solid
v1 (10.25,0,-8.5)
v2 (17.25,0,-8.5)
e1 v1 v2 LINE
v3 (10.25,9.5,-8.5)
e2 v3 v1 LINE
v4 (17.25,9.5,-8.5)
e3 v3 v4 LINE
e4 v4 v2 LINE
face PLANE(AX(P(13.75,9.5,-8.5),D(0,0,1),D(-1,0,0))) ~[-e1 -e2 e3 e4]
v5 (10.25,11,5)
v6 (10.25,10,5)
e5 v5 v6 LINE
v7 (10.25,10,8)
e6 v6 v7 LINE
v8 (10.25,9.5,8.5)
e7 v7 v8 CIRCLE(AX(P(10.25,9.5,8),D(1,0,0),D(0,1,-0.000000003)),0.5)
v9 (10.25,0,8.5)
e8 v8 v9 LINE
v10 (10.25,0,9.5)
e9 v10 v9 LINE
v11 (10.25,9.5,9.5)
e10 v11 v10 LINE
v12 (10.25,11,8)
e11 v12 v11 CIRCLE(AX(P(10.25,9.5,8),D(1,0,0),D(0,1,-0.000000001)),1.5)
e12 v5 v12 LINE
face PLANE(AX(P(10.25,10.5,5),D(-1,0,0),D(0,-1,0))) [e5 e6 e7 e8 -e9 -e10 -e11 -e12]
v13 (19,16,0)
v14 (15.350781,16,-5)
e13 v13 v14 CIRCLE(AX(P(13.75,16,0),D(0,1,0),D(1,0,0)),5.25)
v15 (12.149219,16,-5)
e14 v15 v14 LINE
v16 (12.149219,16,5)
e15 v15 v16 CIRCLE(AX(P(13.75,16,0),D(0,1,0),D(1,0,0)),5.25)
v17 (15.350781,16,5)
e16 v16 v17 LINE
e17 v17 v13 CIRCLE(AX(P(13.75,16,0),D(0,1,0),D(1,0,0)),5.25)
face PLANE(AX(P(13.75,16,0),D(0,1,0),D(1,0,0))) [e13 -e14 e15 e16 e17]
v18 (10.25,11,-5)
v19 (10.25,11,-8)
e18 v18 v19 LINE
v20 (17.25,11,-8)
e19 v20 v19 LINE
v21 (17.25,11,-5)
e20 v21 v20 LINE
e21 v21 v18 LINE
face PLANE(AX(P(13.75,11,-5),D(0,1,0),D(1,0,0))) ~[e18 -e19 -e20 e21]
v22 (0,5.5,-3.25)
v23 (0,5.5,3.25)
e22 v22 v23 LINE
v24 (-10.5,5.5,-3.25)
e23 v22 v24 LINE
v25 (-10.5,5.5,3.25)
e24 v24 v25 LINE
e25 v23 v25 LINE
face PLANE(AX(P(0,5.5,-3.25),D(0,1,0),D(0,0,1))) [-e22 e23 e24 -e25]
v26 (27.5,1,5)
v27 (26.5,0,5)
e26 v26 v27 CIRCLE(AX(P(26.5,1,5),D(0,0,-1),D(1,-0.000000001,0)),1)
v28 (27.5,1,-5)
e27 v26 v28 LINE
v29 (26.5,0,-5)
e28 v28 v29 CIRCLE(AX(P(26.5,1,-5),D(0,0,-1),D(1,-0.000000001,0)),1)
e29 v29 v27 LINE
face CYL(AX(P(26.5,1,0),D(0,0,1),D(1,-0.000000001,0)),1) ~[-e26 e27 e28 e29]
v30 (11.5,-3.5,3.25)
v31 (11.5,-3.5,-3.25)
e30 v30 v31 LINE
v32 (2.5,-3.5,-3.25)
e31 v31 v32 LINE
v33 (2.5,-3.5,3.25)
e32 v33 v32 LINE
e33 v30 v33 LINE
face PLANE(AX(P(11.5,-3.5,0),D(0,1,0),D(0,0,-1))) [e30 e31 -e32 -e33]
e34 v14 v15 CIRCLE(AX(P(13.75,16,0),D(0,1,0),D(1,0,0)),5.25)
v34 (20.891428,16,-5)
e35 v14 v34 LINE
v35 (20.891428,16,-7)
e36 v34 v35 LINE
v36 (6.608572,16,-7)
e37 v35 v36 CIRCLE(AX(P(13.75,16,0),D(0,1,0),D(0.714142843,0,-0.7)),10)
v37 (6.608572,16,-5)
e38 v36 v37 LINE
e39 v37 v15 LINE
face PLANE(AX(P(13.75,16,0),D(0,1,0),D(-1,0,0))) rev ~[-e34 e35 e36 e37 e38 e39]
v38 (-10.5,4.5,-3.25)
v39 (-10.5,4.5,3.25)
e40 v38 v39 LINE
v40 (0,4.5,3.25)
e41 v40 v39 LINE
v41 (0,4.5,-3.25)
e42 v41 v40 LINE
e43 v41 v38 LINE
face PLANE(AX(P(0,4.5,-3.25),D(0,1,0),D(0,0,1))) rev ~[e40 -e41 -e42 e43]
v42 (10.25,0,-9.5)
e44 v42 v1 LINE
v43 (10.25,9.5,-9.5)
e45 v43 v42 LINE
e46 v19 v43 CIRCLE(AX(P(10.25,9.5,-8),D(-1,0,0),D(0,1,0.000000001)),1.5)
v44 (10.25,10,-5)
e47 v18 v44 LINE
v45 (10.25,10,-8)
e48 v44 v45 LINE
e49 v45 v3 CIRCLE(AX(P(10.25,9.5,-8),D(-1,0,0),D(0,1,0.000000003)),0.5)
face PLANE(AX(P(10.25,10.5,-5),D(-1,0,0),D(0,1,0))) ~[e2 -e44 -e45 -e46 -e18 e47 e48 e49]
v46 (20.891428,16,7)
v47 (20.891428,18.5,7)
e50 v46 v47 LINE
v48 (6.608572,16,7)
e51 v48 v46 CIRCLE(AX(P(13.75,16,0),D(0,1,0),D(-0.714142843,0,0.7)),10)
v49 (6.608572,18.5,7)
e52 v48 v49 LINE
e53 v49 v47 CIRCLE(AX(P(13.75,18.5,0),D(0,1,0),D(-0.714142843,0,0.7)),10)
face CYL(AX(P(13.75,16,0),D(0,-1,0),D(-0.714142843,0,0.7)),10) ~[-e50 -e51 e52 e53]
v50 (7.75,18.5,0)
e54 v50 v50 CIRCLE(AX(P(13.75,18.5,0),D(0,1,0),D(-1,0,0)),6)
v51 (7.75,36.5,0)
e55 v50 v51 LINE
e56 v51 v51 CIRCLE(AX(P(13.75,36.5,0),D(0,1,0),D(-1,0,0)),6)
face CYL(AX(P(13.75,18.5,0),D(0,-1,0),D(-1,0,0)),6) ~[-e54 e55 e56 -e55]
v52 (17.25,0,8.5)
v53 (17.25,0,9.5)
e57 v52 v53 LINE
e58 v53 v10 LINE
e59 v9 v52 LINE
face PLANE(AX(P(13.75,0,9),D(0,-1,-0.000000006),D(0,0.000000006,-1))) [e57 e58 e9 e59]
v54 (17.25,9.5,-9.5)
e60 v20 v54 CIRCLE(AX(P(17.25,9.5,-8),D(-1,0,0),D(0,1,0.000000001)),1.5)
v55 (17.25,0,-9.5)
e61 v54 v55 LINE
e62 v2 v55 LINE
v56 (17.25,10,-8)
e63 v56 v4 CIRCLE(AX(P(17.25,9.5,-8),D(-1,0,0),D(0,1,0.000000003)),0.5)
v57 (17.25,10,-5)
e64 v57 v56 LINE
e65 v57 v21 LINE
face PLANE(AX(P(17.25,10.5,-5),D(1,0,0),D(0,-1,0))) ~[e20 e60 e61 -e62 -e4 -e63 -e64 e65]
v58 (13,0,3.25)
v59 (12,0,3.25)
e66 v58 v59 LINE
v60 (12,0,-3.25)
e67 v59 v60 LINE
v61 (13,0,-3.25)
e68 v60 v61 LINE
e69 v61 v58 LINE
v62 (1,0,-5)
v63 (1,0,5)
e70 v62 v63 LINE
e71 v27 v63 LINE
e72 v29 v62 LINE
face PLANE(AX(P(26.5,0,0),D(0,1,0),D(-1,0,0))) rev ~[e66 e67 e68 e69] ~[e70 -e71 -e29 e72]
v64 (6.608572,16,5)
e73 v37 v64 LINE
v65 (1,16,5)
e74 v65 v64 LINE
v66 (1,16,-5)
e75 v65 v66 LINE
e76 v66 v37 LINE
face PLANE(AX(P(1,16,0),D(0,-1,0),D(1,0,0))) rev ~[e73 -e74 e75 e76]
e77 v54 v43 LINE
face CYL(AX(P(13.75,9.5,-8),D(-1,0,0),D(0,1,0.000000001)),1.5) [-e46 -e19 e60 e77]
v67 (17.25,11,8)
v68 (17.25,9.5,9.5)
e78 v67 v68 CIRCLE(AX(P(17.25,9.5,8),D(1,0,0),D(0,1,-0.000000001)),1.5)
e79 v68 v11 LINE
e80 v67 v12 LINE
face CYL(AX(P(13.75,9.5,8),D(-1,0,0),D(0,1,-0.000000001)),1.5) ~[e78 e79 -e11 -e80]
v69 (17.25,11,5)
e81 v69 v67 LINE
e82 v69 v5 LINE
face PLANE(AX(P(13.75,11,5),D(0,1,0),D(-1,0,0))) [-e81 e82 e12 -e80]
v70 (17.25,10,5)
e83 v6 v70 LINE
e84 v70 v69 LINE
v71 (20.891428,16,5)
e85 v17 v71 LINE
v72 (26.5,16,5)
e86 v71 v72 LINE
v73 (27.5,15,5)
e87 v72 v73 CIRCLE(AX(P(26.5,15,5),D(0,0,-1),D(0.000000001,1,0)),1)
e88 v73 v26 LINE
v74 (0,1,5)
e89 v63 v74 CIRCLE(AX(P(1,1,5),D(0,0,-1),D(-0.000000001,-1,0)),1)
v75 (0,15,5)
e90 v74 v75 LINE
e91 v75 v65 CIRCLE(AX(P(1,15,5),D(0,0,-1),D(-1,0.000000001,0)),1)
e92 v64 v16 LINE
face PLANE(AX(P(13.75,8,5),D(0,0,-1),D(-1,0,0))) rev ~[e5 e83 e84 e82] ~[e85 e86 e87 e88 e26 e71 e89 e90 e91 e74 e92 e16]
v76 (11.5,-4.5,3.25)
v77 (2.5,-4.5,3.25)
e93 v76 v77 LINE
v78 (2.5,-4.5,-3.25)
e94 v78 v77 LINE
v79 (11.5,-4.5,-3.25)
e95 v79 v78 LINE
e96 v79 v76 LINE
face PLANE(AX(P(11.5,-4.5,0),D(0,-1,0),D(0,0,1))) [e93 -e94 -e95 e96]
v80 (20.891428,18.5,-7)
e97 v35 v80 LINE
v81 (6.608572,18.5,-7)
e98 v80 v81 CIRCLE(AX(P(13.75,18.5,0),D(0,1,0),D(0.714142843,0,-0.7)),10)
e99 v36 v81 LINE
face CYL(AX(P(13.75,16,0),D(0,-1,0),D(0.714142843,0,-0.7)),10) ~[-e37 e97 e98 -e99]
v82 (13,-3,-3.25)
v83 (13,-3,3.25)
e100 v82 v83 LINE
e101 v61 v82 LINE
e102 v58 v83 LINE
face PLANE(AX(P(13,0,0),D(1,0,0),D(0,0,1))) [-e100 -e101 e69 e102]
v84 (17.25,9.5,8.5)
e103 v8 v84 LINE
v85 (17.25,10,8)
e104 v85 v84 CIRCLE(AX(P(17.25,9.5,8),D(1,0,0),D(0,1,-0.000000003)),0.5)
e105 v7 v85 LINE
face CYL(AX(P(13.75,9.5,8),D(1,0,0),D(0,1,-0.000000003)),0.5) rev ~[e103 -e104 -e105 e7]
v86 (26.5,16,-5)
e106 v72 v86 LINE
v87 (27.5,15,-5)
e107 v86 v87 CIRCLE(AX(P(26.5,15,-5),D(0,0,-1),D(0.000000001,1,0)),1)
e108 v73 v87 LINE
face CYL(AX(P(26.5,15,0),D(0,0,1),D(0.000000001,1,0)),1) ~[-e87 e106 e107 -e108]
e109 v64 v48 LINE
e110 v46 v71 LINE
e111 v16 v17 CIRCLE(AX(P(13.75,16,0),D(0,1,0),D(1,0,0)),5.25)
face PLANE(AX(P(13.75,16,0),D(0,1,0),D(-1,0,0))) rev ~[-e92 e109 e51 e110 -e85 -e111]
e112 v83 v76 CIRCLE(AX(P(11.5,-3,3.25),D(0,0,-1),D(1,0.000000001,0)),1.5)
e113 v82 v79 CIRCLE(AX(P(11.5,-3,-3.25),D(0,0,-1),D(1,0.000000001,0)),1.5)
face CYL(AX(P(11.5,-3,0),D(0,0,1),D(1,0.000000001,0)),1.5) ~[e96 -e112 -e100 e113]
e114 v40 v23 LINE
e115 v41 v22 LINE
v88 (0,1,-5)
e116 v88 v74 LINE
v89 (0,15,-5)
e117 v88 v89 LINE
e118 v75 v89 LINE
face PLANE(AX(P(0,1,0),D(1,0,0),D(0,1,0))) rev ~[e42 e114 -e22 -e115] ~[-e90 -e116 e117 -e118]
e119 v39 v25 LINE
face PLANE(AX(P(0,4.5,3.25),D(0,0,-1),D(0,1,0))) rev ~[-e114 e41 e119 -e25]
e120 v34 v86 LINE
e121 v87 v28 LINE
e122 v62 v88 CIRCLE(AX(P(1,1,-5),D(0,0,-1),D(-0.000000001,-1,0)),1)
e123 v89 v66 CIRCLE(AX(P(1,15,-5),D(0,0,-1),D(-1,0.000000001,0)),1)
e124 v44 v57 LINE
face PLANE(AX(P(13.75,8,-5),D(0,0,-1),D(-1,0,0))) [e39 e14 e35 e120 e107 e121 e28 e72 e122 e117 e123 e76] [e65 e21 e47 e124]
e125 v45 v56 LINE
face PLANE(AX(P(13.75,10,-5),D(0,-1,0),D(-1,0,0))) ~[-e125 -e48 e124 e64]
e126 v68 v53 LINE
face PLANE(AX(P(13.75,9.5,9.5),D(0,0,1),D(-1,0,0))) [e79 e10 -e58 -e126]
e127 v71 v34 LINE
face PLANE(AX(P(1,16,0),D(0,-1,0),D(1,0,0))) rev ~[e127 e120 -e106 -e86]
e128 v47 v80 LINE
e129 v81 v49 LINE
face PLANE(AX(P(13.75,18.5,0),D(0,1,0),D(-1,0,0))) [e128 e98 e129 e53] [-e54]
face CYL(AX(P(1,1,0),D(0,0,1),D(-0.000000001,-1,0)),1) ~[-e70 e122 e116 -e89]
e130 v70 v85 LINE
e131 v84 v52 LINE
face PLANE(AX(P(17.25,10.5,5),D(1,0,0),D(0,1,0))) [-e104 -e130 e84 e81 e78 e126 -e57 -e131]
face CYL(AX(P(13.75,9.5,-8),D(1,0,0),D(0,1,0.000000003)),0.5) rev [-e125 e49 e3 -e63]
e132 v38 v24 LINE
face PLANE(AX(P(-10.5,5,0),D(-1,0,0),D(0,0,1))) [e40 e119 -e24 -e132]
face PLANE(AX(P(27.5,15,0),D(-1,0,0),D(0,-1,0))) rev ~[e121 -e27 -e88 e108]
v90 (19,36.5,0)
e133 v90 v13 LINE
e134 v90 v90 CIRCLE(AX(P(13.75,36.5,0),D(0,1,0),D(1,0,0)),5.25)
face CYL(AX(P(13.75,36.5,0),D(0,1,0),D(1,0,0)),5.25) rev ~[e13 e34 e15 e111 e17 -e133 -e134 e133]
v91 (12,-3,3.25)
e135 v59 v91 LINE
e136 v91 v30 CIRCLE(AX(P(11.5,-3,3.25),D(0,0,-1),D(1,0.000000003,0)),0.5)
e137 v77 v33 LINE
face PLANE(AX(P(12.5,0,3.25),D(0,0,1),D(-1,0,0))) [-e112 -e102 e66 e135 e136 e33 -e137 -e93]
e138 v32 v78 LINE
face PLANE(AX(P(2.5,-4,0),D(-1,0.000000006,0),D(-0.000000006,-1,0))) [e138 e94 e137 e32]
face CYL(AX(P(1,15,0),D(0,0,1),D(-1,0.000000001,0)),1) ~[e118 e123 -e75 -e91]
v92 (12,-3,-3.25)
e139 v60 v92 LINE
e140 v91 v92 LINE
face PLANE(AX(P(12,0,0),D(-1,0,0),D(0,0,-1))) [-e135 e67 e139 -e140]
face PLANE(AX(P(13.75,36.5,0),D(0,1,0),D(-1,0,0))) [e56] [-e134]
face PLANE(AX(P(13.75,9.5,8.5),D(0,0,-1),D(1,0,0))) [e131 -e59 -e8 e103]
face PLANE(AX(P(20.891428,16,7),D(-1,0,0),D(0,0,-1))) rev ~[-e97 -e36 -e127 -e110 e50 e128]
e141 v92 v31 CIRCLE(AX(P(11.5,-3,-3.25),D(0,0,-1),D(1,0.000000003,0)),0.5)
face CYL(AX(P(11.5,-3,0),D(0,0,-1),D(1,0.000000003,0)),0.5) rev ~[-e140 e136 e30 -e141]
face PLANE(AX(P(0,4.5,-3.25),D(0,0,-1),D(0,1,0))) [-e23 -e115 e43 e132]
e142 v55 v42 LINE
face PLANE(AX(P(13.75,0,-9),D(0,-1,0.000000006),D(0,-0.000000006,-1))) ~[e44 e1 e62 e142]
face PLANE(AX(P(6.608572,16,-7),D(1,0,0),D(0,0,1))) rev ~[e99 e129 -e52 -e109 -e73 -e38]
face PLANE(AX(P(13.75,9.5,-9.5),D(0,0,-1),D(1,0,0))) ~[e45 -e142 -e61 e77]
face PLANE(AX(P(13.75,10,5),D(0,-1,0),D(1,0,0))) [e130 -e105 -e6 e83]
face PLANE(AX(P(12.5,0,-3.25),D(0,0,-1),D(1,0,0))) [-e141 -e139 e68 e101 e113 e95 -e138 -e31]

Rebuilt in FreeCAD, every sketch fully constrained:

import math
import FreeCAD as App
import Part
import Sketcher

V = App.Vector
Q = App.Units.Quantity


def add_polygon(sketch, points):
    """Adds a closed chain of lines whose ends are joined by coincident constraints."""
    first, n = sketch.GeometryCount, len(points)
    for a, b in zip(points, points[1:] + points[:1]):
        sketch.addGeometry(Part.LineSegment(App.Vector(*a, 0), App.Vector(*b, 0)), False)
    for i in range(n):
        sketch.addConstraint(Sketcher.Constraint("Coincident", first + i, 2, first + (i + 1) % n, 1))

doc = App.newDocument("Part")
body = doc.addObject("PartDesign::Body", "Body")

# Sketch on XY plane
sketch1 = doc.addObject("Sketcher::SketchObject", "Sketch")
body.addObject(sketch1)
sketch1.AttachmentSupport = (doc.XY_Plane, [""])
sketch1.MapMode = "FlatFace"
sketch1.addGeometry(Part.LineSegment(V(0, 15, 0), V(0, 1, 0)), False)
sketch1.addGeometry(Part.ArcOfCircle(Part.Circle(V(1, 1, 0), V(0, 0, 1), 1), math.radians(-180), math.radians(-90)), False)
sketch1.addGeometry(Part.LineSegment(V(1, 0, 0), V(26.5, 0, 0)), False)
sketch1.addGeometry(Part.ArcOfCircle(Part.Circle(V(26.5, 1, 0), V(0, 0, 1), 1), math.radians(-90), math.radians(0)), False)
sketch1.addGeometry(Part.LineSegment(V(27.5, 1, 0), V(27.5, 15, 0)), False)
sketch1.addGeometry(Part.ArcOfCircle(Part.Circle(V(26.5, 15, 0), V(0, 0, 1), 1), math.radians(0), math.radians(90)), False)
sketch1.addGeometry(Part.LineSegment(V(26.5, 16, 0), V(1, 16, 0)), False)
sketch1.addGeometry(Part.ArcOfCircle(Part.Circle(V(1, 15, 0), V(0, 0, 1), 1), math.radians(90), math.radians(180)), False)
sketch1.addConstraint(Sketcher.Constraint("Tangent", 0, 2, 1, 1))
sketch1.addConstraint(Sketcher.Constraint("Tangent", 1, 2, 2, 1))
sketch1.addConstraint(Sketcher.Constraint("Tangent", 2, 2, 3, 1))
sketch1.addConstraint(Sketcher.Constraint("Tangent", 3, 2, 4, 1))
sketch1.addConstraint(Sketcher.Constraint("Tangent", 4, 2, 5, 1))
sketch1.addConstraint(Sketcher.Constraint("Tangent", 5, 2, 6, 1))
sketch1.addConstraint(Sketcher.Constraint("Tangent", 6, 2, 7, 1))
sketch1.addConstraint(Sketcher.Constraint("Tangent", 7, 2, 0, 1))
sketch1.addConstraint(Sketcher.Constraint("Vertical", 0))
sketch1.addConstraint(Sketcher.Constraint("Horizontal", 2))
sketch1.addConstraint(Sketcher.Constraint("Vertical", 4))
sketch1.addConstraint(Sketcher.Constraint("Horizontal", 6))
sketch1.addConstraint(Sketcher.Constraint("Equal", 1, 3))
sketch1.addConstraint(Sketcher.Constraint("Equal", 3, 5))
sketch1.addConstraint(Sketcher.Constraint("Equal", 5, 7))
sketch1.addConstraint(Sketcher.Constraint("PointOnObject", 0, 2, -2))
sketch1.addConstraint(Sketcher.Constraint("PointOnObject", 1, 2, -1))
sketch1.addConstraint(Sketcher.Constraint("Radius", 1, Q("1 mm")))
sketch1.addConstraint(Sketcher.Constraint("DistanceY", 0, 2, 0, 1, Q("14 mm")))
sketch1.addConstraint(Sketcher.Constraint("DistanceX", 2, 1, 2, 2, Q("25.5 mm")))
pad1 = doc.addObject("PartDesign::Pad", "Pad")
body.addObject(pad1)
pad1.Profile = sketch1
pad1.Type = "TwoLengths"
pad1.Length = 5
pad1.Length2 = 5

# Sketch on XZ plane
sketch2 = doc.addObject("Sketcher::SketchObject", "Sketch001")
body.addObject(sketch2)
sketch2.AttachmentSupport = (doc.XZ_Plane, [""])
sketch2.MapMode = "FlatFace"
sketch2.AttachmentOffset = App.Placement(V(0, 0, -16), App.Rotation())
sketch2.addGeometry(Part.LineSegment(V(21, 7, 0), V(21, -7, 0)), False)
sketch2.addGeometry(Part.ArcOfCircle(Part.Circle(V(14, 0, 0), V(0, 0, 1), 10), math.radians(-136), math.radians(-44)), False)
sketch2.addGeometry(Part.LineSegment(V(7, -7, 0), V(7, 7, 0)), False)
sketch2.addGeometry(Part.ArcOfCircle(Part.Circle(V(14, 0, 0), V(0, 0, 1), 10), math.radians(44), math.radians(136)), False)
sketch2.addConstraint(Sketcher.Constraint("Coincident", 0, 2, 1, 2))
sketch2.addConstraint(Sketcher.Constraint("Coincident", 1, 1, 2, 1))
sketch2.addConstraint(Sketcher.Constraint("Coincident", 2, 2, 3, 2))
sketch2.addConstraint(Sketcher.Constraint("Coincident", 3, 1, 0, 1))
sketch2.addConstraint(Sketcher.Constraint("Vertical", 0))
sketch2.addConstraint(Sketcher.Constraint("Vertical", 2))
sketch2.addConstraint(Sketcher.Constraint("Coincident", 3, 3, 1, 3))
sketch2.addConstraint(Sketcher.Constraint("Equal", 1, 3))
sketch2.addConstraint(Sketcher.Constraint("PointOnObject", 1, 3, -1))
sketch2.addConstraint(Sketcher.Constraint("Horizontal", 0, 2, 1, 1))
sketch2.addConstraint(Sketcher.Constraint("Radius", 1, Q("10 mm")))
sketch2.addConstraint(Sketcher.Constraint("DistanceY", 0, 2, 0, 1, Q("14 mm")))
sketch2.addConstraint(Sketcher.Constraint("DistanceX", -1, 1, 1, 3, Q("13.75 mm")))
pad2 = doc.addObject("PartDesign::Pad", "Pad001")
body.addObject(pad2)
pad2.Profile = sketch2
pad2.Length = 2.5
pad2.Reversed = True

# Sketch on XZ plane
sketch3 = doc.addObject("Sketcher::SketchObject", "Sketch002")
body.addObject(sketch3)
sketch3.AttachmentSupport = (doc.XZ_Plane, [""])
sketch3.MapMode = "FlatFace"
add_polygon(sketch3, [(12, 3.2), (12, -3.2), (13, -3.2), (13, 3.2)])  # lines 0-3
sketch3.addConstraint(Sketcher.Constraint("Vertical", 0))
sketch3.addConstraint(Sketcher.Constraint("Horizontal", 1))
sketch3.addConstraint(Sketcher.Constraint("Vertical", 2))
sketch3.addConstraint(Sketcher.Constraint("Horizontal", 3))
sketch3.addConstraint(Sketcher.Constraint("DistanceX", 1, 1, 1, 2, Q("1 mm")))
sketch3.addConstraint(Sketcher.Constraint("DistanceY", 0, 2, 0, 1, Q("6.5 mm")))
sketch3.addConstraint(Sketcher.Constraint("DistanceX", -1, 1, 0, 2, Q("12 mm")))
sketch3.addConstraint(Sketcher.Constraint("DistanceY", 0, 2, -1, 1, Q("3.25 mm")))

# Sketch on XY plane
sketch4 = doc.addObject("Sketcher::SketchObject", "Sketch003")
body.addObject(sketch4)
sketch4.AttachmentSupport = (doc.XY_Plane, [""])
sketch4.MapMode = "FlatFace"
sketch4.AttachmentOffset = App.Placement(V(0, 0, 5), App.Rotation())
sketch4.addGeometry(Part.LineSegment(V(12, 0, 0), V(12, -3, 0)), False)
sketch4.addGeometry(Part.ArcOfCircle(Part.Circle(V(11.5, -3, 0), V(0, 0, 1), 0.5), math.radians(-90), math.radians(0)), False)
sketch4.addGeometry(Part.LineSegment(V(11.5, -3.5, 0), V(2.5, -3.5, 0)), False)
sketch4.addConstraint(Sketcher.Constraint("Tangent", 0, 2, 1, 2))
sketch4.addConstraint(Sketcher.Constraint("Tangent", 1, 1, 2, 1))
sketch4.addConstraint(Sketcher.Constraint("Vertical", 0))
sketch4.addConstraint(Sketcher.Constraint("Horizontal", 2))
sketch4.addConstraint(Sketcher.Constraint("PointOnObject", 0, 1, -1))
sketch4.addConstraint(Sketcher.Constraint("Radius", 1, Q("0.5 mm")))
sketch4.addConstraint(Sketcher.Constraint("DistanceX", 2, 2, 2, 1, Q("9 mm")))
sketch4.addConstraint(Sketcher.Constraint("DistanceY", 0, 2, 0, 1, Q("3 mm")))
sketch4.addConstraint(Sketcher.Constraint("DistanceX", -1, 1, 0, 1, Q("12 mm")))
doc.recompute()

additivepipe = doc.addObject("PartDesign::AdditivePipe", "AdditivePipe")
body.addObject(additivepipe)
additivepipe.Profile = sketch3
additivepipe.Spine = (sketch4, ["Edge1", "Edge2", "Edge3"])

# Sketch on YZ plane
sketch5 = doc.addObject("Sketcher::SketchObject", "Sketch004")
body.addObject(sketch5)
sketch5.AttachmentSupport = (doc.YZ_Plane, [""])
sketch5.MapMode = "FlatFace"
add_polygon(sketch5, [(5.5, -3.2), (4.5, -3.2), (4.5, 3.2), (5.5, 3.2)])  # lines 0-3
sketch5.addConstraint(Sketcher.Constraint("Horizontal", 0))
sketch5.addConstraint(Sketcher.Constraint("Vertical", 1))
sketch5.addConstraint(Sketcher.Constraint("Horizontal", 2))
sketch5.addConstraint(Sketcher.Constraint("Vertical", 3))
sketch5.addConstraint(Sketcher.Constraint("DistanceX", 0, 2, 0, 1, Q("1 mm")))
sketch5.addConstraint(Sketcher.Constraint("DistanceY", 1, 1, 1, 2, Q("6.5 mm")))
sketch5.addConstraint(Sketcher.Constraint("DistanceX", -1, 1, 0, 2, Q("4.5 mm")))
sketch5.addConstraint(Sketcher.Constraint("DistanceY", 0, 2, -1, 1, Q("3.25 mm")))
pad3 = doc.addObject("PartDesign::Pad", "Pad002")
body.addObject(pad3)
pad3.Profile = sketch5
pad3.Length = 10.5
pad3.Reversed = True

# Sketch on XY plane
sketch6 = doc.addObject("Sketcher::SketchObject", "Sketch005")
body.addObject(sketch6)
sketch6.AttachmentSupport = (doc.XY_Plane, [""])
sketch6.MapMode = "FlatFace"
sketch6.AttachmentOffset = App.Placement(V(0, 0, 5), App.Rotation())
add_polygon(sketch6, [(10.2, 11), (10.2, 10), (17.2, 10), (17.2, 11)])  # lines 0-3
sketch6.addConstraint(Sketcher.Constraint("Vertical", 0))
sketch6.addConstraint(Sketcher.Constraint("Horizontal", 1))
sketch6.addConstraint(Sketcher.Constraint("Vertical", 2))
sketch6.addConstraint(Sketcher.Constraint("Horizontal", 3))
sketch6.addConstraint(Sketcher.Constraint("DistanceX", 1, 1, 1, 2, Q("7 mm")))
sketch6.addConstraint(Sketcher.Constraint("DistanceY", 0, 2, 0, 1, Q("1 mm")))
sketch6.addConstraint(Sketcher.Constraint("DistanceY", -1, 1, 0, 2, Q("10 mm")))
sketch6.addConstraint(Sketcher.Constraint("DistanceX", -1, 1, 0, 2, Q("10.25 mm")))

# Sketch on YZ plane
sketch7 = doc.addObject("Sketcher::SketchObject", "Sketch006")
body.addObject(sketch7)
sketch7.AttachmentSupport = (doc.YZ_Plane, [""])
sketch7.MapMode = "FlatFace"
sketch7.addGeometry(Part.LineSegment(V(10, 5, 0), V(10, 8, 0)), False)
sketch7.addGeometry(Part.ArcOfCircle(Part.Circle(V(9.5, 8, 0), V(0, 0, 1), 0.5), math.radians(0), math.radians(90)), False)
sketch7.addGeometry(Part.LineSegment(V(9.5, 8.5, 0), V(0, 8.5, 0)), False)
sketch7.addConstraint(Sketcher.Constraint("Tangent", 0, 2, 1, 1))
sketch7.addConstraint(Sketcher.Constraint("Tangent", 1, 2, 2, 1))
sketch7.addConstraint(Sketcher.Constraint("Vertical", 0))
sketch7.addConstraint(Sketcher.Constraint("Horizontal", 2))
sketch7.addConstraint(Sketcher.Constraint("PointOnObject", 2, 2, -2))
sketch7.addConstraint(Sketcher.Constraint("Radius", 1, Q("0.5 mm")))
sketch7.addConstraint(Sketcher.Constraint("DistanceY", 0, 1, 0, 2, Q("3 mm")))
sketch7.addConstraint(Sketcher.Constraint("DistanceX", 2, 2, 2, 1, Q("9.5 mm")))
sketch7.addConstraint(Sketcher.Constraint("DistanceY", -1, 1, 1, 3, Q("8 mm")))
doc.recompute()

additivepipe2 = doc.addObject("PartDesign::AdditivePipe", "AdditivePipe001")
body.addObject(additivepipe2)
additivepipe2.Profile = sketch6
additivepipe2.Spine = (sketch7, ["Edge1", "Edge2", "Edge3"])
doc.recompute()

mirrored = doc.addObject("PartDesign::Mirrored", "Mirrored")
body.addObject(mirrored)
mirrored.Originals = [additivepipe2]
mirrored.MirrorPlane = (doc.XY_Plane, [""])
body.Tip = mirrored

# Sketch on XZ plane
sketch8 = doc.addObject("Sketcher::SketchObject", "Sketch007")
body.addObject(sketch8)
sketch8.AttachmentSupport = (doc.XZ_Plane, [""])
sketch8.MapMode = "FlatFace"
sketch8.AttachmentOffset = App.Placement(V(0, 0, -18.5), App.Rotation())
sketch8.addGeometry(Part.Circle(V(14, 0, 0), V(0, 0, 1), 6), False)
sketch8.addConstraint(Sketcher.Constraint("PointOnObject", 0, 3, -1))
sketch8.addConstraint(Sketcher.Constraint("Diameter", 0, Q("12 mm")))
sketch8.addConstraint(Sketcher.Constraint("DistanceX", -1, 1, 0, 3, Q("13.75 mm")))
pad4 = doc.addObject("PartDesign::Pad", "Pad003")
body.addObject(pad4)
pad4.Profile = sketch8
pad4.Length = 18
pad4.Reversed = True

# Sketch on XZ plane
sketch9 = doc.addObject("Sketcher::SketchObject", "Sketch008")
body.addObject(sketch9)
sketch9.AttachmentSupport = (doc.XZ_Plane, [""])
sketch9.MapMode = "FlatFace"
sketch9.AttachmentOffset = App.Placement(V(0, 0, -36.5), App.Rotation())
sketch9.addGeometry(Part.Circle(V(14, 0, 0), V(0, 0, 1), 5), False)
sketch9.addConstraint(Sketcher.Constraint("PointOnObject", 0, 3, -1))
sketch9.addConstraint(Sketcher.Constraint("Diameter", 0, Q("10.5 mm")))
sketch9.addConstraint(Sketcher.Constraint("DistanceX", -1, 1, 0, 3, Q("13.75 mm")))
pocket1 = doc.addObject("PartDesign::Pocket", "Pocket")
body.addObject(pocket1)
pocket1.Profile = sketch9
pocket1.Length = 20.5
pocket1.Reversed = True

doc.recompute()
